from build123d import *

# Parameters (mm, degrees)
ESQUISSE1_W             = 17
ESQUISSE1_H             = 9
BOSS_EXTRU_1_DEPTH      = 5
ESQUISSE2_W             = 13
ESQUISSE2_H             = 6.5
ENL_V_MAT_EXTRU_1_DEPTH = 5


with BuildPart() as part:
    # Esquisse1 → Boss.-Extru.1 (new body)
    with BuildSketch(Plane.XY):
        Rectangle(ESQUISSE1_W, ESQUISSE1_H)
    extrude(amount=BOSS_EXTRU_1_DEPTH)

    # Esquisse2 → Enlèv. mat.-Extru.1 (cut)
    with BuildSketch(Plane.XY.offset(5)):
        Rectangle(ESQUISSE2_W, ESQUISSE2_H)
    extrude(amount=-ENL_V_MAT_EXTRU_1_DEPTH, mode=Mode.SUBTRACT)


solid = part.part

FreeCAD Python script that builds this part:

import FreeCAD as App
import Part
import Sketcher
from FreeCAD import Vector

doc = App.newDocument("Part")
body = doc.addObject("PartDesign::Body", "Body")

# Sketch on XY plane
sketch1 = body.newObject("Sketcher::SketchObject", "Sketch")
sketch1.AttachmentSupport = (doc.getObject("XY_Plane"), [""])
sketch1.MapMode = "FlatFace"
sketch1.addGeometry(Part.LineSegment(Vector(-8, 4, 0), Vector(-8, -4, 0)), False)
sketch1.addGeometry(Part.LineSegment(Vector(-8, -4, 0), Vector(8, -4, 0)), False)
sketch1.addGeometry(Part.LineSegment(Vector(8, -4, 0), Vector(8, 4, 0)), False)
sketch1.addGeometry(Part.LineSegment(Vector(8, 4, 0), Vector(-8, 4, 0)), False)
sketch1.addConstraint(Sketcher.Constraint("Coincident", 0, 2, 1, 1))
sketch1.addConstraint(Sketcher.Constraint("Coincident", 1, 2, 2, 1))
sketch1.addConstraint(Sketcher.Constraint("Coincident", 2, 2, 3, 1))
sketch1.addConstraint(Sketcher.Constraint("Coincident", 3, 2, 0, 1))
sketch1.addConstraint(Sketcher.Constraint("Vertical", 0))
sketch1.addConstraint(Sketcher.Constraint("Horizontal", 1))
sketch1.addConstraint(Sketcher.Constraint("Vertical", 2))
sketch1.addConstraint(Sketcher.Constraint("Horizontal", 3))
sketch1.addConstraint(Sketcher.Constraint("Symmetric", 0, 2, 2, 2, -1, 1))
sketch1.addConstraint(Sketcher.Constraint("DistanceX", 1, 1, 1, 2, 17.0))
sketch1.addConstraint(Sketcher.Constraint("DistanceY", 0, 2, 0, 1, 9.0))
pad1 = body.newObject("PartDesign::Pad", "Pad")
pad1.Profile = sketch1
pad1.Length = 5

# Sketch on XY plane
sketch2 = body.newObject("Sketcher::SketchObject", "Sketch001")
sketch2.AttachmentSupport = (doc.getObject("XY_Plane"), [""])
sketch2.MapMode = "FlatFace"
sketch2.AttachmentOffset = App.Placement(Vector(0, 0, 5), App.Rotation())
sketch2.addGeometry(Part.LineSegment(Vector(-6, 3, 0), Vector(-6, -3, 0)), False)
sketch2.addGeometry(Part.LineSegment(Vector(-6, -3, 0), Vector(6, -3, 0)), False)
sketch2.addGeometry(Part.LineSegment(Vector(6, -3, 0), Vector(6, 3, 0)), False)
sketch2.addGeometry(Part.LineSegment(Vector(6, 3, 0), Vector(-6, 3, 0)), False)
sketch2.addConstraint(Sketcher.Constraint("Coincident", 0, 2, 1, 1))
sketch2.addConstraint(Sketcher.Constraint("Coincident", 1, 2, 2, 1))
sketch2.addConstraint(Sketcher.Constraint("Coincident", 2, 2, 3, 1))
sketch2.addConstraint(Sketcher.Constraint("Coincident", 3, 2, 0, 1))
sketch2.addConstraint(Sketcher.Constraint("Vertical", 0))
sketch2.addConstraint(Sketcher.Constraint("Horizontal", 1))
sketch2.addConstraint(Sketcher.Constraint("Vertical", 2))
sketch2.addConstraint(Sketcher.Constraint("Horizontal", 3))
sketch2.addConstraint(Sketcher.Constraint("Symmetric", 0, 2, 2, 2, -1, 1))
sketch2.addConstraint(Sketcher.Constraint("DistanceX", 1, 1, 1, 2, 13.0))
sketch2.addConstraint(Sketcher.Constraint("DistanceY", 0, 2, 0, 1, 6.5))
pocket1 = body.newObject("PartDesign::Pocket", "Pocket")
pocket1.Profile = sketch2
pocket1.Length = 5

doc.recompute()
